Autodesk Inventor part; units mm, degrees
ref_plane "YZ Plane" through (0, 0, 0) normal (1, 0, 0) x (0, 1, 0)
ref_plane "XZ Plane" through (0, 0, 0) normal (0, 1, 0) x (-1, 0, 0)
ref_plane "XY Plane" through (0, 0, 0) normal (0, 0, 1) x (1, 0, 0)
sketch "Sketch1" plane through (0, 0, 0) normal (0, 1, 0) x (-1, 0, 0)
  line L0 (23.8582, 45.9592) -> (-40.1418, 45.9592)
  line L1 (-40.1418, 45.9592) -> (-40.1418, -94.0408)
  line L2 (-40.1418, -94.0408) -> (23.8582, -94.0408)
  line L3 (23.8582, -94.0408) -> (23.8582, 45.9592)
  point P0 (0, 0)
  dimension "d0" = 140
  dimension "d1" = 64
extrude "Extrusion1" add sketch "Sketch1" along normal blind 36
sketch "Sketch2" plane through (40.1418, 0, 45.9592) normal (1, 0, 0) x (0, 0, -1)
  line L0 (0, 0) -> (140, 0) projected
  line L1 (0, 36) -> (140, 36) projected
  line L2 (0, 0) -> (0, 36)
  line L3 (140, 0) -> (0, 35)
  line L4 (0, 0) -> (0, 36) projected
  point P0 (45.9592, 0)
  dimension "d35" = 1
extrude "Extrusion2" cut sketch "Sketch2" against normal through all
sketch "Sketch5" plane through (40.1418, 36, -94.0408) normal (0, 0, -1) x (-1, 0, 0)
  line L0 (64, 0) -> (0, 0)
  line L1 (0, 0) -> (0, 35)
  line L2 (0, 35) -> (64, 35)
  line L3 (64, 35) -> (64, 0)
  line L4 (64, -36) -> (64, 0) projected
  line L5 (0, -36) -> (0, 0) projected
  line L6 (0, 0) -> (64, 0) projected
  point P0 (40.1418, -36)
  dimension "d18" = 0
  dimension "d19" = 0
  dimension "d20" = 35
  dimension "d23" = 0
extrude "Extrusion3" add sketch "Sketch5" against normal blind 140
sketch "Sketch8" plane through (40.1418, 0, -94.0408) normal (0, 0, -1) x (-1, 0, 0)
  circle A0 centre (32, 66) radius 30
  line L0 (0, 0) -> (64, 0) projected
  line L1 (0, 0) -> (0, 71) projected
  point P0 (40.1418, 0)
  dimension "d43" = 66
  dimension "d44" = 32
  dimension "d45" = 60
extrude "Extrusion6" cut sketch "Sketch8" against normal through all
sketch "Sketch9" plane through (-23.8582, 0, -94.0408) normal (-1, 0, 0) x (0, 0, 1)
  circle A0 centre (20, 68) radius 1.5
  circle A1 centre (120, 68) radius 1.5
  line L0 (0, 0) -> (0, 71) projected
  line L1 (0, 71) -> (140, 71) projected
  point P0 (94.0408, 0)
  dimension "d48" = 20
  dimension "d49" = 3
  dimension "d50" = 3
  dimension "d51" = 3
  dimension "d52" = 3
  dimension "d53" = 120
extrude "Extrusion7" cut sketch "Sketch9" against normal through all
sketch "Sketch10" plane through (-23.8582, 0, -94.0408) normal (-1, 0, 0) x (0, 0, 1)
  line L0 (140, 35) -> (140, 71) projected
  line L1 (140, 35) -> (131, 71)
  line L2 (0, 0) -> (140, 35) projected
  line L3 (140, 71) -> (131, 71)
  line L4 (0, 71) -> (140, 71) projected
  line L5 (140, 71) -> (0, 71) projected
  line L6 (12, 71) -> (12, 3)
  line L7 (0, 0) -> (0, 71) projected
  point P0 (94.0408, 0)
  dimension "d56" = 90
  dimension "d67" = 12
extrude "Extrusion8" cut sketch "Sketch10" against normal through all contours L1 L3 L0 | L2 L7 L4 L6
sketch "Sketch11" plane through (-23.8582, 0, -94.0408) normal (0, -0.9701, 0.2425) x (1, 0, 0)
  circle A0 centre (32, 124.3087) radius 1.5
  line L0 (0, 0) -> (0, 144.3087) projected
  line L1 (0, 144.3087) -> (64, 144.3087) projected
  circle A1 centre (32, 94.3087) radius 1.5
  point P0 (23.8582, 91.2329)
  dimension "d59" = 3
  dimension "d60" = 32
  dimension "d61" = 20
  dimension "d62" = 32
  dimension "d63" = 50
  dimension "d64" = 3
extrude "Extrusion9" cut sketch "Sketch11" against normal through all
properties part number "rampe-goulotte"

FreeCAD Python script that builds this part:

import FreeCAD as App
import Part
import Sketcher
Q = App.Units.Quantity

doc = App.newDocument("Part")
params = doc.addObject("Spreadsheet::Sheet", "Params")
for row, (alias, value) in enumerate([
    ("sketch1_width", "64 mm"),
    ("sketch1_height", "140 mm"),
    ("pad1_length", "36 mm"),
    ("sketch2_width", "35 mm"),
    ("sketch2_height", "140 mm"),
    ("sketch3_height", "35 mm"),
    ("sketch3_width", "64 mm"),
    ("pad2_length", "140 mm"),
    ("sketch4_diameter", "60 mm"),
    ("sketch5_diameter", "3 mm"),
    ("sketch6_height", "12 mm"),
    ("sketch6_width", "36 mm"),
    ("sketch6_width2", "68 mm"),
    ("sketch6_width3", "71 mm"),
    ("sketch7_diameter", "3 mm"),
], start=1):
    params.set(f"A{row}", alias)
    params.set(f"B{row}", "=" + value)
    params.setAlias(f"B{row}", alias)

body = doc.addObject("PartDesign::Body", "Body")

sketch1 = body.newObject("Sketcher::SketchObject", "Sketch")
sketch1.AttachmentSupport = (doc.getObject("XZ_Plane"), [""])
sketch1.MapMode = "FlatFace"
sketch1.addGeometry(Part.LineSegment(App.Vector(-24, -94, 0), App.Vector(-24, 46, 0)), False)
sketch1.addGeometry(Part.LineSegment(App.Vector(-24, 46, 0), App.Vector(40, 46, 0)), False)
sketch1.addGeometry(Part.LineSegment(App.Vector(40, 46, 0), App.Vector(40, -94, 0)), False)
sketch1.addGeometry(Part.LineSegment(App.Vector(40, -94, 0), App.Vector(-24, -94, 0)), False)
sketch1.addConstraint(Sketcher.Constraint("Coincident", 0, 2, 1, 1))
sketch1.addConstraint(Sketcher.Constraint("Coincident", 1, 2, 2, 1))
sketch1.addConstraint(Sketcher.Constraint("Coincident", 2, 2, 3, 1))
sketch1.addConstraint(Sketcher.Constraint("Coincident", 3, 2, 0, 1))
sketch1.addConstraint(Sketcher.Constraint("Vertical", 0))
sketch1.addConstraint(Sketcher.Constraint("Horizontal", 1))
sketch1.addConstraint(Sketcher.Constraint("Vertical", 2))
sketch1.addConstraint(Sketcher.Constraint("Horizontal", 3))
sketch1.addConstraint(Sketcher.Constraint("DistanceX", 1, 1, 1, 2, Q("64 mm")))
sketch1.addConstraint(Sketcher.Constraint("DistanceY", 0, 1, 0, 2, Q("140 mm")))
sketch1.addConstraint(Sketcher.Constraint("DistanceX", 0, 2, -1, 1, Q("23.8582 mm")))
sketch1.addConstraint(Sketcher.Constraint("DistanceY", -1, 1, 0, 2, Q("45.9592 mm")))
sketch1.setExpression("Constraints[8]", "Params.sketch1_width")
sketch1.setExpression("Constraints[9]", "Params.sketch1_height")
pad1 = body.newObject("PartDesign::Pad", "Pad")
pad1.Profile = sketch1
pad1.setExpression("Length", "Params.pad1_length")
pad1.Reversed = True

sketch2 = body.newObject("Sketcher::SketchObject", "Sketch001")
sketch2.AttachmentSupport = (doc.getObject("YZ_Plane"), [""])
sketch2.MapMode = "FlatFace"
sketch2.AttachmentOffset = App.Placement(App.Vector(0, 0, 40.1418), App.Rotation())
sketch2.addGeometry(Part.LineSegment(App.Vector(35, 46, 0), App.Vector(0, 46, 0)), False)
sketch2.addGeometry(Part.LineSegment(App.Vector(0, 46, 0), App.Vector(0, -94, 0)), False)
sketch2.addGeometry(Part.LineSegment(App.Vector(0, -94, 0), App.Vector(35, 46, 0)), False)
sketch2.addConstraint(Sketcher.Constraint("Coincident", 0, 2, 1, 1))
sketch2.addConstraint(Sketcher.Constraint("Coincident", 1, 2, 2, 1))
sketch2.addConstraint(Sketcher.Constraint("Coincident", 2, 2, 0, 1))
sketch2.addConstraint(Sketcher.Constraint("Horizontal", 0))
sketch2.addConstraint(Sketcher.Constraint("Vertical", 1))
sketch2.addConstraint(Sketcher.Constraint("PointOnObject", 0, 2, -2))
sketch2.addConstraint(Sketcher.Constraint("DistanceX", 0, 2, 0, 1, Q("35 mm")))
sketch2.addConstraint(Sketcher.Constraint("DistanceY", 1, 2, 1, 1, Q("140 mm")))
sketch2.addConstraint(Sketcher.Constraint("DistanceY", -1, 1, 0, 2, Q("45.9592 mm")))
sketch2.setExpression("Constraints[6]", "Params.sketch2_width")
sketch2.setExpression("Constraints[7]", "Params.sketch2_height")
pocket1 = body.newObject("PartDesign::Pocket", "Pocket")
pocket1.Profile = sketch2
pocket1.Type = "ThroughAll"

sketch3 = body.newObject("Sketcher::SketchObject", "Sketch002")
sketch3.AttachmentSupport = (doc.getObject("XY_Plane"), [""])
sketch3.MapMode = "FlatFace"
sketch3.AttachmentOffset = App.Placement(App.Vector(0, 0, -94.0408), App.Rotation())
sketch3.addGeometry(Part.LineSegment(App.Vector(40, 36, 0), App.Vector(-24, 36, 0)), False)
sketch3.addGeometry(Part.LineSegment(App.Vector(-24, 36, 0), App.Vector(-24, 71, 0)), False)
sketch3.addGeometry(Part.LineSegment(App.Vector(-24, 71, 0), App.Vector(40, 71, 0)), False)
sketch3.addGeometry(Part.LineSegment(App.Vector(40, 71, 0), App.Vector(40, 36, 0)), False)
sketch3.addConstraint(Sketcher.Constraint("Coincident", 0, 2, 1, 1))
sketch3.addConstraint(Sketcher.Constraint("Coincident", 1, 2, 2, 1))
sketch3.addConstraint(Sketcher.Constraint("Coincident", 2, 2, 3, 1))
sketch3.addConstraint(Sketcher.Constraint("Coincident", 3, 2, 0, 1))
sketch3.addConstraint(Sketcher.Constraint("Horizontal", 0))
sketch3.addConstraint(Sketcher.Constraint("Vertical", 1))
sketch3.addConstraint(Sketcher.Constraint("Horizontal", 2))
sketch3.addConstraint(Sketcher.Constraint("Vertical", 3))
sketch3.addConstraint(Sketcher.Constraint("DistanceY", 1, 1, 1, 2, Q("35 mm")))
sketch3.addConstraint(Sketcher.Constraint("DistanceX", 0, 2, 0, 1, Q("64 mm")))
sketch3.addConstraint(Sketcher.Constraint("DistanceY", -1, 1, 0, 2, Q("36 mm")))
sketch3.addConstraint(Sketcher.Constraint("DistanceX", 0, 2, -1, 1, Q("23.8582 mm")))
sketch3.setExpression("Constraints[8]", "Params.sketch3_height")
sketch3.setExpression("Constraints[9]", "Params.sketch3_width")
pad2 = body.newObject("PartDesign::Pad", "Pad001")
pad2.Profile = sketch3
pad2.setExpression("Length", "Params.pad2_length")

sketch4 = body.newObject("Sketcher::SketchObject", "Sketch003")
sketch4.AttachmentSupport = (doc.getObject("XY_Plane"), [""])
sketch4.MapMode = "FlatFace"
sketch4.AttachmentOffset = App.Placement(App.Vector(0, 0, -94.0408), App.Rotation())
sketch4.addGeometry(Part.Circle(App.Vector(8, 66, 0), App.Vector(0, 0, 1), 30), False)
sketch4.addConstraint(Sketcher.Constraint("Diameter", 0, Q("60 mm")))
sketch4.addConstraint(Sketcher.Constraint("DistanceY", -1, 1, 0, 3, Q("66 mm")))
sketch4.addConstraint(Sketcher.Constraint("DistanceX", -1, 1, 0, 3, Q("8.1418 mm")))
sketch4.setExpression("Constraints[0]", "Params.sketch4_diameter")
pocket2 = body.newObject("PartDesign::Pocket", "Pocket001")
pocket2.Profile = sketch4
pocket2.Type = "ThroughAll"
pocket2.Reversed = True

sketch5 = body.newObject("Sketcher::SketchObject", "Sketch004")
sketch5.AttachmentSupport = (doc.getObject("YZ_Plane"), [""])
sketch5.MapMode = "FlatFace"
sketch5.AttachmentOffset = App.Placement(App.Vector(0, 0, -23.8582), App.Rotation())
sketch5.addGeometry(Part.Circle(App.Vector(68, -74, 0), App.Vector(0, 0, 1), 1.5), False)
sketch5.addGeometry(Part.Circle(App.Vector(68, 26, 0), App.Vector(0, 0, 1), 1.5), False)
sketch5.addConstraint(Sketcher.Constraint("Equal", 0, 1))
sketch5.addConstraint(Sketcher.Constraint("Vertical", 0, 3, 1, 3))
sketch5.addConstraint(Sketcher.Constraint("Diameter", 0, Q("3 mm")))
sketch5.addConstraint(Sketcher.Constraint("DistanceX", -1, 1, 0, 3, Q("68 mm")))
sketch5.addConstraint(Sketcher.Constraint("DistanceY", 0, 3, 1, 3, Q("100 mm")))
sketch5.addConstraint(Sketcher.Constraint("DistanceY", 0, 3, -1, 1, Q("74.0408 mm")))
sketch5.setExpression("Constraints[2]", "Params.sketch5_diameter")
pocket3 = body.newObject("PartDesign::Pocket", "Pocket002")
pocket3.Profile = sketch5
pocket3.Type = "ThroughAll"
pocket3.Reversed = True

sketch6 = body.newObject("Sketcher::SketchObject", "Sketch005")
sketch6.AttachmentSupport = (doc.getObject("YZ_Plane"), [""])
sketch6.MapMode = "FlatFace"
sketch6.AttachmentOffset = App.Placement(App.Vector(0, 0, -23.8582), App.Rotation())
sketch6.addGeometry(Part.LineSegment(App.Vector(71, 37, 0), App.Vector(35, 46, 0)), False)
sketch6.addGeometry(Part.LineSegment(App.Vector(35, 46, 0), App.Vector(71, 46, 0)), False)
sketch6.addGeometry(Part.LineSegment(App.Vector(71, 46, 0), App.Vector(71, 37, 0)), False)
sketch6.addGeometry(Part.LineSegment(App.Vector(0, -94, 0), App.Vector(3, -82, 0)), False)
sketch6.addGeometry(Part.LineSegment(App.Vector(3, -82, 0), App.Vector(71, -82, 0)), False)
sketch6.addGeometry(Part.LineSegment(App.Vector(71, -82, 0), App.Vector(71, -94, 0)), False)
sketch6.addGeometry(Part.LineSegment(App.Vector(71, -94, 0), App.Vector(0, -94, 0)), False)
sketch6.addConstraint(Sketcher.Constraint("Coincident", 0, 2, 1, 1))
sketch6.addConstraint(Sketcher.Constraint("Coincident", 1, 2, 2, 1))
sketch6.addConstraint(Sketcher.Constraint("Coincident", 2, 2, 0, 1))
sketch6.addConstraint(Sketcher.Constraint("Coincident", 3, 2, 4, 1))
sketch6.addConstraint(Sketcher.Constraint("Coincident", 4, 2, 5, 1))
sketch6.addConstraint(Sketcher.Constraint("Coincident", 5, 2, 6, 1))
sketch6.addConstraint(Sketcher.Constraint("Coincident", 6, 2, 3, 1))
sketch6.addConstraint(Sketcher.Constraint("Horizontal", 1))
sketch6.addConstraint(Sketcher.Constraint("Vertical", 2))
sketch6.addConstraint(Sketcher.Constraint("Horizontal", 4))
sketch6.addConstraint(Sketcher.Constraint("Vertical", 5))
sketch6.addConstraint(Sketcher.Constraint("Horizontal", 6))
sketch6.addConstraint(Sketcher.Constraint("PointOnObject", 6, 2, -2))
sketch6.addConstraint(Sketcher.Constraint("Perpendicular", 0, 3))
sketch6.addConstraint(Sketcher.Constraint("Vertical", 2, 2, 4, 2))
sketch6.addConstraint(Sketcher.Constraint("DistanceY", 5, 2, 5, 1, Q("12 mm")))
sketch6.addConstraint(Sketcher.Constraint("DistanceX", 1, 1, 1, 2, Q("36 mm")))
sketch6.addConstraint(Sketcher.Constraint("DistanceX", 4, 1, 4, 2, Q("68 mm")))
sketch6.addConstraint(Sketcher.Constraint("DistanceX", 6, 2, 6, 1, Q("71 mm")))
sketch6.addConstraint(Sketcher.Constraint("DistanceY", 3, 2, 0, 2, Q("128 mm")))
sketch6.addConstraint(Sketcher.Constraint("DistanceY", -1, 1, 0, 2, Q("45.9592 mm")))
sketch6.setExpression("Constraints[15]", "Params.sketch6_height")
sketch6.setExpression("Constraints[16]", "Params.sketch6_width")
sketch6.setExpression("Constraints[17]", "Params.sketch6_width2")
sketch6.setExpression("Constraints[18]", "Params.sketch6_width3")
pocket4 = body.newObject("PartDesign::Pocket", "Pocket003")
pocket4.Profile = sketch6
pocket4.Type = "ThroughAll"
pocket4.Reversed = True

sketch7 = body.newObject("Sketcher::SketchObject", "Sketch006")
sketch7.Placement = App.Placement(App.Vector(-23.8582, 0, -94.0408), App.Rotation(App.Vector(1, 0, 0), App.Vector(0, 0.242512094, 0.970148383), App.Vector(0, -0.970148383, 0.242512094), "ZXY"))
sketch7.addGeometry(Part.Circle(App.Vector(32, 124.3, 0), App.Vector(0, 0, 1), 1.5), False)
sketch7.addGeometry(Part.Circle(App.Vector(32, 94.3, 0), App.Vector(0, 0, 1), 1.5), False)
sketch7.addConstraint(Sketcher.Constraint("Equal", 0, 1))
sketch7.addConstraint(Sketcher.Constraint("Vertical", 0, 3, 1, 3))
sketch7.addConstraint(Sketcher.Constraint("Diameter", 0, Q("3 mm")))
sketch7.addConstraint(Sketcher.Constraint("DistanceX", -1, 1, 0, 3, Q("32 mm")))
sketch7.addConstraint(Sketcher.Constraint("DistanceY", 1, 3, 0, 3, Q("30 mm")))
sketch7.addConstraint(Sketcher.Constraint("DistanceY", -1, 1, 0, 3, Q("124.3087 mm")))
sketch7.setExpression("Constraints[2]", "Params.sketch7_diameter")
pocket5 = body.newObject("PartDesign::Pocket", "Pocket004")
pocket5.Profile = sketch7
pocket5.Type = "ThroughAll"

doc.recompute()
